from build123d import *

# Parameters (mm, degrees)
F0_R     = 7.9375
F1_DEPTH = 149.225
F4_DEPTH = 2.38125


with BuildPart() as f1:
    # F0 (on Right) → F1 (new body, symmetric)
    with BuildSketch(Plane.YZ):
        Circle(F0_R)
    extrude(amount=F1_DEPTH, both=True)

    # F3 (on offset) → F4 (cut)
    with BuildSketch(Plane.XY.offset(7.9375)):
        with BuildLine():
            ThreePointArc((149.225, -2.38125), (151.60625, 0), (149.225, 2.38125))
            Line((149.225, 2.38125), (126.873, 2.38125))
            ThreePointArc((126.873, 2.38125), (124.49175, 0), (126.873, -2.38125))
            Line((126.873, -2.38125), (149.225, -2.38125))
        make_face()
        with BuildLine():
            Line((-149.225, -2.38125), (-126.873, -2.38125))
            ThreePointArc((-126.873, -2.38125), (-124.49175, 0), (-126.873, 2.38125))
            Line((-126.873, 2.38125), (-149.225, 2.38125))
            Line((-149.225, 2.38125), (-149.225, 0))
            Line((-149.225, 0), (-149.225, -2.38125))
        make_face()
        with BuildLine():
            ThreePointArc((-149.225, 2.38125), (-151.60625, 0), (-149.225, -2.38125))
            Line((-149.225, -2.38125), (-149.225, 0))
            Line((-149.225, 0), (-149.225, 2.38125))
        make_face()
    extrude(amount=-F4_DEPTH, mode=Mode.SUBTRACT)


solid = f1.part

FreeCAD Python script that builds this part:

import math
import FreeCAD as App
import Part
import Sketcher

V = App.Vector
Q = App.Units.Quantity

doc = App.newDocument("Part")
params = doc.addObject("Spreadsheet::Sheet", "Params")
for row, (alias, value) in enumerate([
    ("sketch1_diameter", "0.625 in"),
    ("pad1_length", "11.75 in"),
    ("sketch2_radius", "0.09375 in"),
    ("sketch2_width", "0.88 in"),
    ("pocket1_length", "0.09375 in"),
], start=1):
    params.set(f"A{row}", alias)
    params.set(f"B{row}", "=" + value)
    params.setAlias(f"B{row}", alias)

body = doc.addObject("PartDesign::Body", "Body")

# Sketch on YZ plane
sketch1 = body.newObject("Sketcher::SketchObject", "Sketch")
sketch1.AttachmentSupport = (doc.getObject("YZ_Plane"), [""])
sketch1.MapMode = "FlatFace"
sketch1.addGeometry(Part.Circle(V(0, 0, 0), V(0, 0, 1), 8), False)
sketch1.addConstraint([
    Sketcher.Constraint("Coincident", 0, 3, -1, 1),
    Sketcher.Constraint("Diameter", 0, Q("0.625 in")),
])
sketch1.setExpression("Constraints[1]", "Params.sketch1_diameter")
pad1 = body.newObject("PartDesign::Pad", "Pad")
pad1.Profile = sketch1
pad1.setExpression("Length", "Params.pad1_length")
pad1.Midplane = True

# Sketch on XY plane
sketch2 = body.newObject("Sketcher::SketchObject", "Sketch001")
sketch2.AttachmentSupport = (doc.getObject("XY_Plane"), [""])
sketch2.MapMode = "FlatFace"
sketch2.AttachmentOffset = App.Placement(V(0, 0, 0.3125 * 25.4), App.Rotation())
sketch2.addGeometry([
    Part.ArcOfCircle(Part.Circle(V(149.2, 0, 0), V(0, 0, 1), 2.4), math.radians(-90), math.radians(90)),  # 0
    Part.LineSegment(V(149.2, 2.4, 0), V(126.9, 2.4, 0)),  # 1
    Part.ArcOfCircle(Part.Circle(V(126.9, 0, 0), V(0, 0, 1), 2.4), math.radians(90), math.radians(270)),  # 2
    Part.LineSegment(V(126.9, -2.4, 0), V(149.2, -2.4, 0)),  # 3
    Part.LineSegment(V(-149.2, -2.4, 0), V(-126.9, -2.4, 0)),  # 4
    Part.ArcOfCircle(Part.Circle(V(-126.9, 0, 0), V(0, 0, 1), 2.4), math.radians(-90), math.radians(90)),  # 5
    Part.LineSegment(V(-126.9, 2.4, 0), V(-149.2, 2.4, 0)),  # 6
    Part.ArcOfCircle(Part.Circle(V(-149.2, 0, 0), V(0, 0, 1), 2.4), math.radians(90), math.radians(270)),  # 7
], False)
sketch2.addConstraint([
    Sketcher.Constraint("Tangent", 0, 2, 1, 1),
    Sketcher.Constraint("Tangent", 1, 2, 2, 1),
    Sketcher.Constraint("Tangent", 2, 2, 3, 1),
    Sketcher.Constraint("Tangent", 3, 2, 0, 1),
    Sketcher.Constraint("Tangent", 4, 2, 5, 1),
    Sketcher.Constraint("Tangent", 5, 2, 6, 1),
    Sketcher.Constraint("Tangent", 6, 2, 7, 1),
    Sketcher.Constraint("Tangent", 7, 2, 4, 1),
    Sketcher.Constraint("Horizontal", 1),
    Sketcher.Constraint("Horizontal", 3),
    Sketcher.Constraint("Horizontal", 4),
    Sketcher.Constraint("Horizontal", 6),
    Sketcher.Constraint("Equal", 2, 5),
    Sketcher.Constraint("Symmetric", 2, 3, 5, 3, -1, 1),
    Sketcher.Constraint("Symmetric", 0, 3, 7, 3, -2),
    Sketcher.Constraint("Radius", 0, Q("0.09375 in")),
    Sketcher.Constraint("DistanceX", 1, 2, 1, 1, Q("0.88 in")),
    Sketcher.Constraint("DistanceX", 5, 3, 2, 3, Q("9.99 in")),
])
sketch2.setExpression("Constraints[15]", "Params.sketch2_radius")
sketch2.setExpression("Constraints[16]", "Params.sketch2_width")
pocket1 = body.newObject("PartDesign::Pocket", "Pocket")
pocket1.Profile = sketch2
pocket1.setExpression("Length", "Params.pocket1_length")

doc.recompute()
